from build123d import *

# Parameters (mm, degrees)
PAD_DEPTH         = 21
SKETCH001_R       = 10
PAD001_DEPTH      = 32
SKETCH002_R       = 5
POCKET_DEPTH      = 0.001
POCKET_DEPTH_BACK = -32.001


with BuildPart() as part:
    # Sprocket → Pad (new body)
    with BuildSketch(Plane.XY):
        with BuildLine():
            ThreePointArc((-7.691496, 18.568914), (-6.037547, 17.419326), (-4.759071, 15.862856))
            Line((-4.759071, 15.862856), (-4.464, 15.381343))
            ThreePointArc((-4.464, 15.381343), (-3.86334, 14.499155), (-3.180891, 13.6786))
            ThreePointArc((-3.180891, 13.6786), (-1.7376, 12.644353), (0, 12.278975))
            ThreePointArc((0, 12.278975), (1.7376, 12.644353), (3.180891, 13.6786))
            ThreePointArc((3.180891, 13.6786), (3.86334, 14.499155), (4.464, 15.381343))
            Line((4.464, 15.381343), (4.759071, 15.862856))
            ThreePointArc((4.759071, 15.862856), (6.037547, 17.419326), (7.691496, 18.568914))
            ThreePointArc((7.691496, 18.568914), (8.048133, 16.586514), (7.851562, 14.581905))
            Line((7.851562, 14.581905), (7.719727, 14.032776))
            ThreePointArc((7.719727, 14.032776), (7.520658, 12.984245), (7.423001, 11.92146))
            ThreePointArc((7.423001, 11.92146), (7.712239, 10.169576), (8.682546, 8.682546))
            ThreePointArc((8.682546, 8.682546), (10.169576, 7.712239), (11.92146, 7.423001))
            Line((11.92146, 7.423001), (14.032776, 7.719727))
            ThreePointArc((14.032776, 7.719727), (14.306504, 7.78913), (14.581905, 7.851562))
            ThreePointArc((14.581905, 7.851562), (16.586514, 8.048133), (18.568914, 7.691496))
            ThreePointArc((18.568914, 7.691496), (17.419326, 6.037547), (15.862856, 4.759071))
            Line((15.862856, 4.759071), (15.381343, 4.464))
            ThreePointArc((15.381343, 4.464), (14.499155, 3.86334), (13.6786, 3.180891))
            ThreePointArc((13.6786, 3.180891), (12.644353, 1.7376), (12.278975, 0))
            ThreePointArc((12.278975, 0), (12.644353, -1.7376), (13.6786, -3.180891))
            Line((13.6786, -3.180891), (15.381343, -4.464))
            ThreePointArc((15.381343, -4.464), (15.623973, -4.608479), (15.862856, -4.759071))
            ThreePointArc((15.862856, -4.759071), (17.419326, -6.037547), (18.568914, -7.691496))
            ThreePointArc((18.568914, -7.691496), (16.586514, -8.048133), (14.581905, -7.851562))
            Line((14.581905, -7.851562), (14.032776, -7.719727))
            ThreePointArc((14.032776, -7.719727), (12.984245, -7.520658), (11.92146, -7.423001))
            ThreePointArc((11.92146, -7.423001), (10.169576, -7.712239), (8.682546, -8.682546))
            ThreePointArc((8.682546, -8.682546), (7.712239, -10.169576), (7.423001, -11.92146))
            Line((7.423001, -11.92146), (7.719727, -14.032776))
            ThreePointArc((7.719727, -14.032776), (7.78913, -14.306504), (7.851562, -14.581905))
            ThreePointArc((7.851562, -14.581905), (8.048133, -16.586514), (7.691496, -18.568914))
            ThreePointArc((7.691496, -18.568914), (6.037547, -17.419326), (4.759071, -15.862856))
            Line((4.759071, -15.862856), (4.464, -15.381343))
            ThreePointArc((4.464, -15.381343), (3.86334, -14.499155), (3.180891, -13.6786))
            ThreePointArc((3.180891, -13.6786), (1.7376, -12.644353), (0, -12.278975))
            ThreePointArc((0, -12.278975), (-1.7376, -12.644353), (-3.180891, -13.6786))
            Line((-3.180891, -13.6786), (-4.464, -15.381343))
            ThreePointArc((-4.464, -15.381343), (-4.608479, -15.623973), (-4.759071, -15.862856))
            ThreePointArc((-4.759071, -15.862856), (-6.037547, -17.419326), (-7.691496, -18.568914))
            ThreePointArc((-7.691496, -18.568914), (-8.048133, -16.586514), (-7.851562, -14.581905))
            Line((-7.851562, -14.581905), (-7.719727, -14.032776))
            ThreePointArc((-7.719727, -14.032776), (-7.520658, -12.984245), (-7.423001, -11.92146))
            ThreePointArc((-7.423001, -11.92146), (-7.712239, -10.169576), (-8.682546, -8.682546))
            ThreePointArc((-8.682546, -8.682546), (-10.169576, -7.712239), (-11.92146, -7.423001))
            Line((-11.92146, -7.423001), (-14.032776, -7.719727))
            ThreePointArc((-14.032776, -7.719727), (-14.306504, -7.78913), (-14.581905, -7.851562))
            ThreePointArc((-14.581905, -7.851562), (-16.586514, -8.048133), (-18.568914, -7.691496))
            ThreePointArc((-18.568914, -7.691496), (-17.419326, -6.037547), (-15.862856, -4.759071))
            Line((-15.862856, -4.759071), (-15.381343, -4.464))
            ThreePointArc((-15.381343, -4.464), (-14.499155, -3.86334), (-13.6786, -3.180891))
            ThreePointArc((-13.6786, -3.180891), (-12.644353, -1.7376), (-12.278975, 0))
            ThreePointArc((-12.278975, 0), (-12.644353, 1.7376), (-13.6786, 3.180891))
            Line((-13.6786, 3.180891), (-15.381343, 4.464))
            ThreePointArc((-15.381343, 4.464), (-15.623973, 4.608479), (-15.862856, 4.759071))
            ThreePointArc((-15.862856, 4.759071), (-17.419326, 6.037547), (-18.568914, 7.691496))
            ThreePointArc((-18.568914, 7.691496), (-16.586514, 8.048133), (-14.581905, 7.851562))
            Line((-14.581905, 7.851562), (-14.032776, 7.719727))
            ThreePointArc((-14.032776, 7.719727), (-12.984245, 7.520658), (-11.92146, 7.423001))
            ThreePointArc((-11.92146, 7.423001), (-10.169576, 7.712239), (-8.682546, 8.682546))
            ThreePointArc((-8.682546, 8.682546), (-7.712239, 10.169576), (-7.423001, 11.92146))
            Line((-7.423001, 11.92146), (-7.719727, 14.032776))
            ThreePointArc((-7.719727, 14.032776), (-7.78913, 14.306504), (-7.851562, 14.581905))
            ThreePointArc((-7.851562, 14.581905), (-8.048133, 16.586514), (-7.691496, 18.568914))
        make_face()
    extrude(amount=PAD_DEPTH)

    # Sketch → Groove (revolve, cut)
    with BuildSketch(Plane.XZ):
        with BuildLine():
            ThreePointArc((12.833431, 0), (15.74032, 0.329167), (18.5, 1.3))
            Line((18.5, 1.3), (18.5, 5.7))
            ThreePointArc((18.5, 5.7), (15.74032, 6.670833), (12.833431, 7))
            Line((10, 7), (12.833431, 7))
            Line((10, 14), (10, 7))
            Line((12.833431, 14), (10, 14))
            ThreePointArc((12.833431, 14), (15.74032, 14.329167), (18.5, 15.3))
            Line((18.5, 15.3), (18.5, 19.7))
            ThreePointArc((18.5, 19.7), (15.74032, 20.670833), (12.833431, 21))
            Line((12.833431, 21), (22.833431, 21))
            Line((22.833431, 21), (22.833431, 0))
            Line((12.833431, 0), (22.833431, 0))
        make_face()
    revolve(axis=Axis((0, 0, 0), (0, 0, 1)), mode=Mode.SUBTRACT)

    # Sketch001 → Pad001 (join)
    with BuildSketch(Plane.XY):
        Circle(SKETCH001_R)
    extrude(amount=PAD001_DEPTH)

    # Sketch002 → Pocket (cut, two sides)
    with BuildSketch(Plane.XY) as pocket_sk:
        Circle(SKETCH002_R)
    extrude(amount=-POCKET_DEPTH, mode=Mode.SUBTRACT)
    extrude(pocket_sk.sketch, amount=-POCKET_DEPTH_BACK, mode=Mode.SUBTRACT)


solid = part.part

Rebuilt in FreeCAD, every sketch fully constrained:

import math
import FreeCAD as App
import Part
import Sketcher

V = App.Vector

doc = App.newDocument("Part")
body = doc.addObject("PartDesign::Body", "Body")

sketch1 = body.newObject("Sketcher::SketchObject", "Sketch")
sketch1.AttachmentSupport = (doc.getObject("XY_Plane"), [""])
sketch1.MapMode = "FlatFace"
sketch1.addGeometry(Part.ArcOfCircle(Part.Circle(V(-11.007099, 12.034061, 0), V(0, 0, 1), 7.327859), math.radians(31.499988), math.radians(63.098027)), False)
sketch1.addGeometry(Part.ArcOfCircle(Part.Circle(V(-0.726167, 16.29256, 0), V(0, 0, 1), 7.327864), math.radians(161.901981), math.radians(193.499994)), False)
sketch1.addGeometry(Part.ArcOfCircle(Part.Circle(V(3.027006, 16.903244, 0), V(0, 0, 1), 11.123482), math.radians(-167.954515), math.radians(-165.045329)), False)
sketch1.addGeometry(Part.LineSegment(V(-7.719727, 14.032776, 0), V(-7.423001, 11.92146, 0)), False)
sketch1.addGeometry(Part.ArcOfCircle(Part.Circle(V(-11.733276, 11.733272, 0), V(0, 0, 1), 4.314381), math.radians(-44.999965), math.radians(2.499958)), False)
sketch1.addGeometry(Part.ArcOfCircle(Part.Circle(V(-11.733272, 11.733276, 0), V(0, 0, 1), 4.314381), math.radians(-92.499958), math.radians(-45.000035)), False)
sketch1.addGeometry(Part.ArcOfCircle(Part.Circle(V(-11.436285, 18.534963, 0), V(0, 0, 1), 11.122549), math.radians(-103.499912), math.radians(-92.500082)), False)
sketch1.addGeometry(Part.LineSegment(V(-14.032776, 7.719727, 0), V(-14.581905, 7.851562, 0)), False)
sketch1.addGeometry(Part.ArcOfCircle(Part.Circle(V(-16.29256, 0.726167, 0), V(0, 0, 1), 7.327864), math.radians(76.500006), math.radians(108.098019)), False)
sketch1.addGeometry(Part.ArcOfCircle(Part.Circle(V(-12.034061, 11.007099, 0), V(0, 0, 1), 7.327859), math.radians(-153.098027), math.radians(-121.499988)), False)
sketch1.addGeometry(Part.ArcOfCircle(Part.Circle(V(-9.812852, 14.091384, 0), V(0, 0, 1), 11.121808), math.radians(-122.954762), math.radians(-120.045144)), False)
sketch1.addGeometry(Part.LineSegment(V(-15.381343, 4.464, 0), V(-13.6786, 3.180891, 0)), False)
sketch1.addGeometry(Part.ArcOfCircle(Part.Circle(V(-16.593353, -0.000001, 0), V(0, 0, 1), 4.314378), math.radians(0.000011), math.radians(47.499973)), False)
sketch1.addGeometry(Part.ArcOfCircle(Part.Circle(V(-16.593353, 0.000001, 0), V(0, 0, 1), 4.314378), math.radians(-47.499973), math.radians(-0.000011)), False)
sketch1.addGeometry(Part.ArcOfCircle(Part.Circle(V(-21.192716, 5.019314, 0), V(0, 0, 1), 11.122288), math.radians(-58.500042), math.radians(-47.499953)), False)
sketch1.addGeometry(Part.LineSegment(V(-15.381343, -4.464, 0), V(-15.862856, -4.759071, 0)), False)
sketch1.addGeometry(Part.ArcOfCircle(Part.Circle(V(-12.034061, -11.007099, 0), V(0, 0, 1), 7.327859), math.radians(121.499988), math.radians(153.098027)), False)
sketch1.addGeometry(Part.ArcOfCircle(Part.Circle(V(-16.29256, -0.726167, 0), V(0, 0, 1), 7.327864), math.radians(-108.098019), math.radians(-76.500006)), False)
sketch1.addGeometry(Part.ArcOfCircle(Part.Circle(V(-16.903244, 3.027006, 0), V(0, 0, 1), 11.123482), math.radians(-77.954515), math.radians(-75.045329)), False)
sketch1.addGeometry(Part.LineSegment(V(-14.032776, -7.719727, 0), V(-11.92146, -7.423001, 0)), False)
sketch1.addGeometry(Part.ArcOfCircle(Part.Circle(V(-11.733272, -11.733276, 0), V(0, 0, 1), 4.314381), math.radians(45.000035), math.radians(92.499958)), False)
sketch1.addGeometry(Part.ArcOfCircle(Part.Circle(V(-11.733276, -11.733272, 0), V(0, 0, 1), 4.314381), math.radians(-2.499958), math.radians(44.999965)), False)
sketch1.addGeometry(Part.ArcOfCircle(Part.Circle(V(-18.534963, -11.436285, 0), V(0, 0, 1), 11.122549), math.radians(-13.499912), math.radians(-2.500082)), False)
sketch1.addGeometry(Part.LineSegment(V(-7.719727, -14.032776, 0), V(-7.851562, -14.581905, 0)), False)
sketch1.addGeometry(Part.ArcOfCircle(Part.Circle(V(-0.726167, -16.29256, 0), V(0, 0, 1), 7.327864), math.radians(166.500006), math.radians(198.098019)), False)
sketch1.addGeometry(Part.ArcOfCircle(Part.Circle(V(-11.007099, -12.034061, 0), V(0, 0, 1), 7.327859), math.radians(-63.098027), math.radians(-31.499988)), False)
sketch1.addGeometry(Part.ArcOfCircle(Part.Circle(V(-14.091384, -9.812852, 0), V(0, 0, 1), 11.121808), math.radians(-32.954762), math.radians(-30.045144)), False)
sketch1.addGeometry(Part.LineSegment(V(-4.464, -15.381343, 0), V(-3.180891, -13.6786, 0)), False)
sketch1.addGeometry(Part.ArcOfCircle(Part.Circle(V(0.000001, -16.593353, 0), V(0, 0, 1), 4.314378), math.radians(90.000011), math.radians(137.499973)), False)
sketch1.addGeometry(Part.ArcOfCircle(Part.Circle(V(-0.000001, -16.593353, 0), V(0, 0, 1), 4.314378), math.radians(42.500027), math.radians(89.999989)), False)
sketch1.addGeometry(Part.ArcOfCircle(Part.Circle(V(-5.019314, -21.192716, 0), V(0, 0, 1), 11.122288), math.radians(31.499958), math.radians(42.500047)), False)
sketch1.addGeometry(Part.LineSegment(V(4.464, -15.381343, 0), V(4.759071, -15.862856, 0)), False)
sketch1.addGeometry(Part.ArcOfCircle(Part.Circle(V(11.007099, -12.034061, 0), V(0, 0, 1), 7.327859), math.radians(-148.500012), math.radians(-116.901973)), False)
sketch1.addGeometry(Part.ArcOfCircle(Part.Circle(V(0.726167, -16.29256, 0), V(0, 0, 1), 7.327864), math.radians(-18.098019), math.radians(13.499994)), False)
sketch1.addGeometry(Part.ArcOfCircle(Part.Circle(V(-3.027006, -16.903244, 0), V(0, 0, 1), 11.123482), math.radians(12.045485), math.radians(14.954671)), False)
sketch1.addGeometry(Part.LineSegment(V(7.719727, -14.032776, 0), V(7.423001, -11.92146, 0)), False)
sketch1.addGeometry(Part.ArcOfCircle(Part.Circle(V(11.733276, -11.733272, 0), V(0, 0, 1), 4.314381), math.radians(135.000035), math.radians(182.499958)), False)
sketch1.addGeometry(Part.ArcOfCircle(Part.Circle(V(11.733272, -11.733276, 0), V(0, 0, 1), 4.314381), math.radians(87.500042), math.radians(134.999965)), False)
sketch1.addGeometry(Part.ArcOfCircle(Part.Circle(V(11.436285, -18.534963, 0), V(0, 0, 1), 11.122549), math.radians(76.500088), math.radians(87.499918)), False)
sketch1.addGeometry(Part.LineSegment(V(14.032776, -7.719727, 0), V(14.581905, -7.851562, 0)), False)
sketch1.addGeometry(Part.ArcOfCircle(Part.Circle(V(16.29256, -0.726167, 0), V(0, 0, 1), 7.327864), math.radians(-103.499994), math.radians(-71.901981)), False)
sketch1.addGeometry(Part.ArcOfCircle(Part.Circle(V(12.034061, -11.007099, 0), V(0, 0, 1), 7.327859), math.radians(26.901973), math.radians(58.500012)), False)
sketch1.addGeometry(Part.ArcOfCircle(Part.Circle(V(9.812852, -14.091384, 0), V(0, 0, 1), 11.121808), math.radians(57.045238), math.radians(59.954856)), False)
sketch1.addGeometry(Part.LineSegment(V(15.381343, -4.464, 0), V(13.6786, -3.180891, 0)), False)
sketch1.addGeometry(Part.ArcOfCircle(Part.Circle(V(16.593353, 0.000001, 0), V(0, 0, 1), 4.314378), math.radians(-179.999989), math.radians(-132.500027)), False)
sketch1.addGeometry(Part.ArcOfCircle(Part.Circle(V(16.593353, -0.000001, 0), V(0, 0, 1), 4.314378), math.radians(132.500027), math.radians(179.999989)), False)
sketch1.addGeometry(Part.ArcOfCircle(Part.Circle(V(21.192716, -5.019314, 0), V(0, 0, 1), 11.122288), math.radians(121.499958), math.radians(132.500047)), False)
sketch1.addGeometry(Part.LineSegment(V(15.381343, 4.464, 0), V(15.862856, 4.759071, 0)), False)
sketch1.addGeometry(Part.ArcOfCircle(Part.Circle(V(12.034061, 11.007099, 0), V(0, 0, 1), 7.327859), math.radians(-58.500012), math.radians(-26.901973)), False)
sketch1.addGeometry(Part.ArcOfCircle(Part.Circle(V(16.29256, 0.726167, 0), V(0, 0, 1), 7.327864), math.radians(71.901981), math.radians(103.499994)), False)
sketch1.addGeometry(Part.ArcOfCircle(Part.Circle(V(16.903244, -3.027006, 0), V(0, 0, 1), 11.123482), math.radians(102.045485), math.radians(104.954671)), False)
sketch1.addGeometry(Part.LineSegment(V(14.032776, 7.719727, 0), V(11.92146, 7.423001, 0)), False)
sketch1.addGeometry(Part.ArcOfCircle(Part.Circle(V(11.733272, 11.733276, 0), V(0, 0, 1), 4.314381), math.radians(-134.999965), math.radians(-87.500042)), False)
sketch1.addGeometry(Part.ArcOfCircle(Part.Circle(V(11.733276, 11.733272, 0), V(0, 0, 1), 4.314381), math.radians(177.500042), math.radians(224.999965)), False)
sketch1.addGeometry(Part.ArcOfCircle(Part.Circle(V(18.534963, 11.436285, 0), V(0, 0, 1), 11.122549), math.radians(166.500088), math.radians(177.499918)), False)
sketch1.addGeometry(Part.LineSegment(V(7.719727, 14.032776, 0), V(7.851562, 14.581905, 0)), False)
sketch1.addGeometry(Part.ArcOfCircle(Part.Circle(V(0.726167, 16.29256, 0), V(0, 0, 1), 7.327864), math.radians(-13.499994), math.radians(18.098019)), False)
sketch1.addGeometry(Part.ArcOfCircle(Part.Circle(V(11.007099, 12.034061, 0), V(0, 0, 1), 7.327859), math.radians(116.901973), math.radians(148.500012)), False)
sketch1.addGeometry(Part.LineSegment(V(4.759071, 15.862856, 0), V(4.464, 15.381343, 0)), False)
sketch1.addGeometry(Part.ArcOfCircle(Part.Circle(V(-5.019314, 21.192716, 0), V(0, 0, 1), 11.122288), math.radians(-42.500047), math.radians(-31.499958)), False)
sketch1.addGeometry(Part.ArcOfCircle(Part.Circle(V(-0.000001, 16.593353, 0), V(0, 0, 1), 4.314378), math.radians(-89.999989), math.radians(-42.500027)), False)
sketch1.addGeometry(Part.ArcOfCircle(Part.Circle(V(0.000001, 16.593353, 0), V(0, 0, 1), 4.314378), math.radians(-137.499973), math.radians(-90.000011)), False)
sketch1.addGeometry(Part.ArcOfCircle(Part.Circle(V(5.019314, 21.192716, 0), V(0, 0, 1), 11.122288), math.radians(-148.500042), math.radians(-137.499953)), False)
sketch1.addGeometry(Part.LineSegment(V(-4.464, 15.381343, 0), V(-4.759071, 15.862856, 0)), False)
sketch1.addConstraint(Sketcher.Constraint("Coincident", 0, 2, 1, 1))
sketch1.addConstraint(Sketcher.Constraint("Coincident", 1, 2, 2, 1))
sketch1.addConstraint(Sketcher.Constraint("Coincident", 2, 2, 3, 1))
sketch1.addConstraint(Sketcher.Constraint("Coincident", 3, 2, 4, 2))
sketch1.addConstraint(Sketcher.Constraint("Coincident", 4, 1, 5, 2))
sketch1.addConstraint(Sketcher.Constraint("Coincident", 5, 1, 6, 2))
sketch1.addConstraint(Sketcher.Constraint("Coincident", 6, 1, 7, 1))
sketch1.addConstraint(Sketcher.Constraint("Coincident", 7, 2, 8, 1))
sketch1.addConstraint(Sketcher.Constraint("Coincident", 8, 2, 9, 1))
sketch1.addConstraint(Sketcher.Constraint("Coincident", 9, 2, 10, 1))
sketch1.addConstraint(Sketcher.Constraint("Coincident", 10, 2, 11, 1))
sketch1.addConstraint(Sketcher.Constraint("Coincident", 11, 2, 12, 2))
sketch1.addConstraint(Sketcher.Constraint("Coincident", 12, 1, 13, 2))
sketch1.addConstraint(Sketcher.Constraint("Coincident", 13, 1, 14, 2))
sketch1.addConstraint(Sketcher.Constraint("Coincident", 14, 1, 15, 1))
sketch1.addConstraint(Sketcher.Constraint("Coincident", 15, 2, 16, 1))
sketch1.addConstraint(Sketcher.Constraint("Coincident", 16, 2, 17, 1))
sketch1.addConstraint(Sketcher.Constraint("Coincident", 17, 2, 18, 1))
sketch1.addConstraint(Sketcher.Constraint("Coincident", 18, 2, 19, 1))
sketch1.addConstraint(Sketcher.Constraint("Coincident", 19, 2, 20, 2))
sketch1.addConstraint(Sketcher.Constraint("Coincident", 20, 1, 21, 2))
sketch1.addConstraint(Sketcher.Constraint("Coincident", 21, 1, 22, 2))
sketch1.addConstraint(Sketcher.Constraint("Coincident", 22, 1, 23, 1))
sketch1.addConstraint(Sketcher.Constraint("Coincident", 23, 2, 24, 1))
sketch1.addConstraint(Sketcher.Constraint("Coincident", 24, 2, 25, 1))
sketch1.addConstraint(Sketcher.Constraint("Coincident", 25, 2, 26, 1))
sketch1.addConstraint(Sketcher.Constraint("Coincident", 26, 2, 27, 1))
sketch1.addConstraint(Sketcher.Constraint("Coincident", 27, 2, 28, 2))
sketch1.addConstraint(Sketcher.Constraint("Coincident", 28, 1, 29, 2))
sketch1.addConstraint(Sketcher.Constraint("Coincident", 29, 1, 30, 2))
sketch1.addConstraint(Sketcher.Constraint("Coincident", 30, 1, 31, 1))
sketch1.addConstraint(Sketcher.Constraint("Coincident", 31, 2, 32, 1))
sketch1.addConstraint(Sketcher.Constraint("Coincident", 32, 2, 33, 1))
sketch1.addConstraint(Sketcher.Constraint("Coincident", 33, 2, 34, 1))
sketch1.addConstraint(Sketcher.Constraint("Coincident", 34, 2, 35, 1))
sketch1.addConstraint(Sketcher.Constraint("Coincident", 35, 2, 36, 2))
sketch1.addConstraint(Sketcher.Constraint("Coincident", 36, 1, 37, 2))
sketch1.addConstraint(Sketcher.Constraint("Coincident", 37, 1, 38, 2))
sketch1.addConstraint(Sketcher.Constraint("Coincident", 38, 1, 39, 1))
sketch1.addConstraint(Sketcher.Constraint("Coincident", 39, 2, 40, 1))
sketch1.addConstraint(Sketcher.Constraint("Coincident", 40, 2, 41, 1))
sketch1.addConstraint(Sketcher.Constraint("Coincident", 41, 2, 42, 1))
sketch1.addConstraint(Sketcher.Constraint("Coincident", 42, 2, 43, 1))
sketch1.addConstraint(Sketcher.Constraint("Coincident", 43, 2, 44, 2))
sketch1.addConstraint(Sketcher.Constraint("Coincident", 44, 1, 45, 2))
sketch1.addConstraint(Sketcher.Constraint("Coincident", 45, 1, 46, 2))
sketch1.addConstraint(Sketcher.Constraint("Coincident", 46, 1, 47, 1))
sketch1.addConstraint(Sketcher.Constraint("Coincident", 47, 2, 48, 1))
sketch1.addConstraint(Sketcher.Constraint("Coincident", 48, 2, 49, 1))
sketch1.addConstraint(Sketcher.Constraint("Coincident", 49, 2, 50, 1))
sketch1.addConstraint(Sketcher.Constraint("Coincident", 50, 2, 51, 1))
sketch1.addConstraint(Sketcher.Constraint("Coincident", 51, 2, 52, 2))
sketch1.addConstraint(Sketcher.Constraint("Coincident", 52, 1, 53, 2))
sketch1.addConstraint(Sketcher.Constraint("Coincident", 53, 1, 54, 2))
sketch1.addConstraint(Sketcher.Constraint("Coincident", 54, 1, 55, 1))
sketch1.addConstraint(Sketcher.Constraint("Coincident", 55, 2, 56, 1))
sketch1.addConstraint(Sketcher.Constraint("Coincident", 56, 2, 57, 1))
sketch1.addConstraint(Sketcher.Constraint("Coincident", 57, 2, 58, 1))
sketch1.addConstraint(Sketcher.Constraint("Coincident", 58, 2, 59, 2))
sketch1.addConstraint(Sketcher.Constraint("Coincident", 59, 1, 60, 2))
sketch1.addConstraint(Sketcher.Constraint("Coincident", 60, 1, 61, 2))
sketch1.addConstraint(Sketcher.Constraint("Coincident", 61, 1, 62, 2))
sketch1.addConstraint(Sketcher.Constraint("Coincident", 62, 1, 63, 1))
sketch1.addConstraint(Sketcher.Constraint("Coincident", 63, 2, 0, 1))
sketch1.addConstraint(Sketcher.Constraint("Coincident", 5, 3, 4, 3))
sketch1.addConstraint(Sketcher.Constraint("Coincident", 13, 3, 12, 3))
sketch1.addConstraint(Sketcher.Constraint("Coincident", 21, 3, 20, 3))
sketch1.addConstraint(Sketcher.Constraint("Coincident", 29, 3, 28, 3))
sketch1.addConstraint(Sketcher.Constraint("Coincident", 37, 3, 36, 3))
sketch1.addConstraint(Sketcher.Constraint("Coincident", 45, 3, 44, 3))
sketch1.addConstraint(Sketcher.Constraint("Coincident", 53, 3, 52, 3))
sketch1.addConstraint(Sketcher.Constraint("Coincident", 61, 3, 60, 3))
sketch1.addConstraint(Sketcher.Constraint("PointOnObject", 12, 3, -1))
sketch1.addConstraint(Sketcher.Constraint("PointOnObject", 28, 3, -2))
sketch1.addConstraint(Sketcher.Constraint("PointOnObject", 44, 3, -1))
sketch1.addConstraint(Sketcher.Constraint("PointOnObject", 60, 3, -2))
sketch1.addConstraint(Sketcher.Constraint("PointOnObject", 12, 1, -1))
sketch1.addConstraint(Sketcher.Constraint("PointOnObject", 28, 1, -2))
sketch1.addConstraint(Sketcher.Constraint("PointOnObject", 44, 1, -1))
sketch1.addConstraint(Sketcher.Constraint("PointOnObject", 60, 1, -2))
sketch1.addConstraint(Sketcher.Constraint("Radius", 0, 7.327859))
sketch1.addConstraint(Sketcher.Constraint("Radius", 4, 4.314381))
sketch1.addConstraint(Sketcher.Constraint("Radius", 6, 11.122549))
sketch1.addConstraint(Sketcher.Constraint("Radius", 9, 7.327859))
sketch1.addConstraint(Sketcher.Constraint("Radius", 10, 11.121808))
sketch1.addConstraint(Sketcher.Constraint("Radius", 12, 4.314378))
sketch1.addConstraint(Sketcher.Constraint("Radius", 14, 11.122288))
sketch1.addConstraint(Sketcher.Constraint("Radius", 16, 7.327859))
sketch1.addConstraint(Sketcher.Constraint("Radius", 20, 4.314381))
sketch1.addConstraint(Sketcher.Constraint("Radius", 22, 11.122549))
sketch1.addConstraint(Sketcher.Constraint("Radius", 25, 7.327859))
sketch1.addConstraint(Sketcher.Constraint("Radius", 26, 11.121808))
sketch1.addConstraint(Sketcher.Constraint("Radius", 28, 4.314378))
sketch1.addConstraint(Sketcher.Constraint("Radius", 30, 11.122288))
sketch1.addConstraint(Sketcher.Constraint("Radius", 32, 7.327859))
sketch1.addConstraint(Sketcher.Constraint("Radius", 36, 4.314381))
sketch1.addConstraint(Sketcher.Constraint("Radius", 38, 11.122549))
sketch1.addConstraint(Sketcher.Constraint("Radius", 41, 7.327859))
sketch1.addConstraint(Sketcher.Constraint("Radius", 42, 11.121808))
sketch1.addConstraint(Sketcher.Constraint("Radius", 44, 4.314378))
sketch1.addConstraint(Sketcher.Constraint("Radius", 46, 11.122288))
sketch1.addConstraint(Sketcher.Constraint("Radius", 48, 7.327859))
sketch1.addConstraint(Sketcher.Constraint("Radius", 52, 4.314381))
sketch1.addConstraint(Sketcher.Constraint("Radius", 54, 11.122549))
sketch1.addConstraint(Sketcher.Constraint("Radius", 57, 7.327859))
sketch1.addConstraint(Sketcher.Constraint("Radius", 59, 11.122288))
sketch1.addConstraint(Sketcher.Constraint("Radius", 60, 4.314378))
sketch1.addConstraint(Sketcher.Constraint("Radius", 62, 11.122288))
sketch1.addConstraint(Sketcher.Constraint("DistanceX", 3, 2, -1, 1, 7.423001))
sketch1.addConstraint(Sketcher.Constraint("DistanceY", -1, 1, 5, 1, 7.423001))
sketch1.addConstraint(Sketcher.Constraint("DistanceY", -1, 1, 10, 2, 4.464))
sketch1.addConstraint(Sketcher.Constraint("DistanceY", 14, 1, -1, 1, 4.464))
sketch1.addConstraint(Sketcher.Constraint("DistanceY", 19, 2, -1, 1, 7.423001))
sketch1.addConstraint(Sketcher.Constraint("DistanceX", 21, 1, -1, 1, 7.423001))
sketch1.addConstraint(Sketcher.Constraint("DistanceX", 26, 2, -1, 1, 4.464))
sketch1.addConstraint(Sketcher.Constraint("DistanceX", -1, 1, 30, 1, 4.464))
sketch1.addConstraint(Sketcher.Constraint("DistanceX", -1, 1, 35, 2, 7.423001))
sketch1.addConstraint(Sketcher.Constraint("DistanceY", 37, 1, -1, 1, 7.423001))
sketch1.addConstraint(Sketcher.Constraint("DistanceY", 42, 2, -1, 1, 4.464))
sketch1.addConstraint(Sketcher.Constraint("DistanceY", -1, 1, 46, 1, 4.464))
sketch1.addConstraint(Sketcher.Constraint("DistanceY", -1, 1, 51, 2, 7.423001))
sketch1.addConstraint(Sketcher.Constraint("DistanceX", -1, 1, 53, 1, 7.423001))
sketch1.addConstraint(Sketcher.Constraint("DistanceX", -1, 1, 58, 2, 4.464))
sketch1.addConstraint(Sketcher.Constraint("DistanceX", 62, 1, -1, 1, 4.464))
sketch1.addConstraint(Sketcher.Constraint("Radius", 1, 7.327864))
sketch1.addConstraint(Sketcher.Constraint("Radius", 2, 11.123482))
sketch1.addConstraint(Sketcher.Constraint("Radius", 8, 7.327864))
sketch1.addConstraint(Sketcher.Constraint("Radius", 17, 7.327864))
sketch1.addConstraint(Sketcher.Constraint("Radius", 18, 11.123482))
sketch1.addConstraint(Sketcher.Constraint("Radius", 24, 7.327864))
sketch1.addConstraint(Sketcher.Constraint("Radius", 33, 7.327864))
sketch1.addConstraint(Sketcher.Constraint("Radius", 34, 11.123482))
sketch1.addConstraint(Sketcher.Constraint("Radius", 40, 7.327864))
sketch1.addConstraint(Sketcher.Constraint("Radius", 49, 7.327864))
sketch1.addConstraint(Sketcher.Constraint("Radius", 50, 11.123482))
sketch1.addConstraint(Sketcher.Constraint("Radius", 56, 7.327864))
sketch1.addConstraint(Sketcher.Constraint("DistanceX", 0, 3, -1, 1, 11.007099))
sketch1.addConstraint(Sketcher.Constraint("DistanceY", -1, 1, 9, 3, 11.007099))
sketch1.addConstraint(Sketcher.Constraint("DistanceY", 16, 3, -1, 1, 11.007099))
sketch1.addConstraint(Sketcher.Constraint("DistanceX", 25, 3, -1, 1, 11.007099))
sketch1.addConstraint(Sketcher.Constraint("DistanceX", -1, 1, 32, 3, 11.007099))
sketch1.addConstraint(Sketcher.Constraint("DistanceY", 41, 3, -1, 1, 11.007099))
sketch1.addConstraint(Sketcher.Constraint("DistanceY", -1, 1, 48, 3, 11.007099))
sketch1.addConstraint(Sketcher.Constraint("DistanceX", -1, 1, 57, 3, 11.007099))
sketch1.addConstraint(Sketcher.Constraint("DistanceX", 11, 2, -1, 1, 13.6786))
sketch1.addConstraint(Sketcher.Constraint("DistanceX", 13, 1, -1, 1, 13.6786))
sketch1.addConstraint(Sketcher.Constraint("DistanceY", 27, 2, -1, 1, 13.6786))
sketch1.addConstraint(Sketcher.Constraint("DistanceY", 29, 1, -1, 1, 13.6786))
sketch1.addConstraint(Sketcher.Constraint("DistanceX", -1, 1, 43, 2, 13.6786))
sketch1.addConstraint(Sketcher.Constraint("DistanceX", -1, 1, 45, 1, 13.6786))
sketch1.addConstraint(Sketcher.Constraint("DistanceY", -1, 1, 59, 1, 13.6786))
sketch1.addConstraint(Sketcher.Constraint("DistanceY", -1, 1, 61, 1, 13.6786))
sketch1.addConstraint(Sketcher.Constraint("Distance", 15, 0.564731))
sketch1.addConstraint(Sketcher.Constraint("Distance", 31, 0.564731))
sketch1.addConstraint(Sketcher.Constraint("Distance", 47, 0.564731))
sketch1.addConstraint(Sketcher.Constraint("Distance", 58, 0.564731))
sketch1.addConstraint(Sketcher.Constraint("Distance", 63, 0.564731))
sketch1.addConstraint(Sketcher.Constraint("DistanceY", -1, 1, 0, 3, 12.034061))
sketch1.addConstraint(Sketcher.Constraint("DistanceY", -1, 1, 1, 3, 16.29256))
sketch1.addConstraint(Sketcher.Constraint("DistanceX", 8, 3, -1, 1, 16.29256))
sketch1.addConstraint(Sketcher.Constraint("DistanceX", 9, 3, -1, 1, 12.034061))
sketch1.addConstraint(Sketcher.Constraint("DistanceX", 10, 3, -1, 1, 9.812852))
sketch1.addConstraint(Sketcher.Constraint("DistanceX", 16, 3, -1, 1, 12.034061))
sketch1.addConstraint(Sketcher.Constraint("DistanceX", 17, 3, -1, 1, 16.29256))
sketch1.addConstraint(Sketcher.Constraint("DistanceY", 24, 3, -1, 1, 16.29256))
sketch1.addConstraint(Sketcher.Constraint("DistanceY", 25, 3, -1, 1, 12.034061))
sketch1.addConstraint(Sketcher.Constraint("DistanceY", 26, 3, -1, 1, 9.812852))
sketch1.addConstraint(Sketcher.Constraint("DistanceY", 32, 3, -1, 1, 12.034061))
sketch1.addConstraint(Sketcher.Constraint("DistanceY", 33, 3, -1, 1, 16.29256))
sketch1.addConstraint(Sketcher.Constraint("DistanceX", -1, 1, 40, 3, 16.29256))
sketch1.addConstraint(Sketcher.Constraint("DistanceX", -1, 1, 41, 3, 12.034061))
sketch1.addConstraint(Sketcher.Constraint("DistanceX", -1, 1, 42, 3, 9.812852))
sketch1.addConstraint(Sketcher.Constraint("DistanceX", -1, 1, 48, 3, 12.034061))
sketch1.addConstraint(Sketcher.Constraint("DistanceX", -1, 1, 49, 3, 16.29256))
sketch1.addConstraint(Sketcher.Constraint("DistanceY", -1, 1, 56, 3, 16.29256))
sketch1.addConstraint(Sketcher.Constraint("DistanceY", -1, 1, 57, 3, 12.034061))
sketch1.addConstraint(Sketcher.Constraint("DistanceX", 1, 2, -1, 1, 7.851562))
sketch1.addConstraint(Sketcher.Constraint("DistanceY", -1, 1, 3, 2, 11.92146))
sketch1.addConstraint(Sketcher.Constraint("DistanceX", 5, 1, -1, 1, 11.92146))
sketch1.addConstraint(Sketcher.Constraint("DistanceY", -1, 1, 9, 2, 4.759071))
sketch1.addConstraint(Sketcher.Constraint("DistanceY", -1, 1, 11, 2, 3.180891))
sketch1.addConstraint(Sketcher.Constraint("DistanceY", 15, 2, -1, 1, 4.759071))
sketch1.addConstraint(Sketcher.Constraint("DistanceY", 17, 2, -1, 1, 7.851562))
sketch1.addConstraint(Sketcher.Constraint("DistanceX", 19, 2, -1, 1, 11.92146))
sketch1.addConstraint(Sketcher.Constraint("DistanceY", 21, 1, -1, 1, 11.92146))
sketch1.addConstraint(Sketcher.Constraint("DistanceX", 25, 2, -1, 1, 4.759071))
sketch1.addConstraint(Sketcher.Constraint("DistanceX", 27, 2, -1, 1, 3.180891))
sketch1.addConstraint(Sketcher.Constraint("DistanceX", -1, 1, 31, 2, 4.759071))
sketch1.addConstraint(Sketcher.Constraint("DistanceX", -1, 1, 33, 2, 7.851562))
sketch1.addConstraint(Sketcher.Constraint("DistanceY", 35, 2, -1, 1, 11.92146))
sketch1.addConstraint(Sketcher.Constraint("DistanceX", -1, 1, 37, 1, 11.92146))
sketch1.addConstraint(Sketcher.Constraint("DistanceY", 41, 2, -1, 1, 4.759071))
sketch1.addConstraint(Sketcher.Constraint("DistanceY", 43, 2, -1, 1, 3.180891))
sketch1.addConstraint(Sketcher.Constraint("DistanceY", -1, 1, 47, 2, 4.759071))
sketch1.addConstraint(Sketcher.Constraint("DistanceY", -1, 1, 49, 2, 7.851562))
sketch1.addConstraint(Sketcher.Constraint("DistanceX", -1, 1, 51, 2, 11.92146))
sketch1.addConstraint(Sketcher.Constraint("DistanceY", -1, 1, 53, 1, 11.92146))
sketch1.addConstraint(Sketcher.Constraint("DistanceX", -1, 1, 57, 2, 4.759071))
sketch1.addConstraint(Sketcher.Constraint("DistanceX", -1, 1, 59, 1, 3.180891))
sketch1.addConstraint(Sketcher.Constraint("DistanceX", 63, 2, -1, 1, 4.759071))
sketch1.addConstraint(Sketcher.Constraint("Distance", 3, 2.132065))
sketch1.addConstraint(Sketcher.Constraint("Distance", 7, 0.564733))
sketch1.addConstraint(Sketcher.Constraint("Distance", 19, 2.132065))
sketch1.addConstraint(Sketcher.Constraint("Distance", 23, 0.564733))
sketch1.addConstraint(Sketcher.Constraint("Distance", 35, 2.132065))
sketch1.addConstraint(Sketcher.Constraint("Distance", 39, 0.564733))
sketch1.addConstraint(Sketcher.Constraint("Distance", 51, 2.132065))
sketch1.addConstraint(Sketcher.Constraint("Distance", 55, 0.564733))
sketch1.addConstraint(Sketcher.Constraint("DistanceX", 1, 3, -1, 1, 0.726167))
sketch1.addConstraint(Sketcher.Constraint("DistanceX", -1, 1, 2, 3, 3.027006))
sketch1.addConstraint(Sketcher.Constraint("DistanceX", 6, 3, -1, 1, 11.436285))
sketch1.addConstraint(Sketcher.Constraint("DistanceY", -1, 1, 8, 3, 0.726167))
sketch1.addConstraint(Sketcher.Constraint("DistanceY", 17, 3, -1, 1, 0.726167))
sketch1.addConstraint(Sketcher.Constraint("DistanceX", 18, 3, -1, 1, 16.903244))
sketch1.addConstraint(Sketcher.Constraint("DistanceX", 22, 3, -1, 1, 18.534963))
sketch1.addConstraint(Sketcher.Constraint("DistanceX", 24, 3, -1, 1, 0.726167))
sketch1.addConstraint(Sketcher.Constraint("DistanceX", -1, 1, 33, 3, 0.726167))
sketch1.addConstraint(Sketcher.Constraint("DistanceX", 34, 3, -1, 1, 3.027006))
sketch1.addConstraint(Sketcher.Constraint("DistanceX", -1, 1, 38, 3, 11.436285))
sketch1.addConstraint(Sketcher.Constraint("DistanceY", 40, 3, -1, 1, 0.726167))
sketch1.addConstraint(Sketcher.Constraint("DistanceY", -1, 1, 49, 3, 0.726167))
sketch1.addConstraint(Sketcher.Constraint("DistanceX", -1, 1, 50, 3, 16.903244))
sketch1.addConstraint(Sketcher.Constraint("DistanceX", -1, 1, 54, 3, 18.534963))
sketch1.addConstraint(Sketcher.Constraint("DistanceX", -1, 1, 56, 3, 0.726167))
sketch1.addConstraint(Sketcher.Constraint("DistanceX", 4, 1, -1, 1, 8.682546))
sketch1.addConstraint(Sketcher.Constraint("DistanceX", 6, 1, -1, 1, 14.032776))
sketch1.addConstraint(Sketcher.Constraint("DistanceX", 20, 1, -1, 1, 8.682546))
sketch1.addConstraint(Sketcher.Constraint("DistanceX", 22, 1, -1, 1, 7.719727))
sketch1.addConstraint(Sketcher.Constraint("DistanceX", -1, 1, 36, 1, 8.682546))
sketch1.addConstraint(Sketcher.Constraint("DistanceX", -1, 1, 38, 1, 14.032776))
sketch1.addConstraint(Sketcher.Constraint("DistanceX", -1, 1, 52, 1, 8.682546))
sketch1.addConstraint(Sketcher.Constraint("DistanceX", -1, 1, 54, 1, 7.719727))
pad1 = body.newObject("PartDesign::Pad", "Pad")
pad1.Profile = sketch1
pad1.Length = 21

sketch2 = body.newObject("Sketcher::SketchObject", "Sketch001")
sketch2.AttachmentSupport = (doc.getObject("XZ_Plane"), [""])
sketch2.MapMode = "FlatFace"
sketch2.addGeometry(Part.ArcOfCircle(Part.Circle(V(12.8, 13, 0), V(0, 0, 1), 13), math.radians(-90), math.radians(-64)), False)
sketch2.addGeometry(Part.LineSegment(V(12.8, 0, 0), V(22.8, 0, 0)), False)
sketch2.addGeometry(Part.LineSegment(V(22.8, 0, 0), V(22.8, 21, 0)), False)
sketch2.addGeometry(Part.LineSegment(V(22.8, 21, 0), V(12.8, 21, 0)), False)
sketch2.addGeometry(Part.ArcOfCircle(Part.Circle(V(12.8, 8, 0), V(0, 0, 1), 13), math.radians(64), math.radians(90)), False)
sketch2.addGeometry(Part.LineSegment(V(18.5, 19.7, 0), V(18.5, 15.3, 0)), False)
sketch2.addGeometry(Part.ArcOfCircle(Part.Circle(V(12.8, 27, 0), V(0, 0, 1), 13), math.radians(-90), math.radians(-64)), False)
sketch2.addGeometry(Part.LineSegment(V(12.8, 14, 0), V(10, 14, 0)), False)
sketch2.addGeometry(Part.LineSegment(V(10, 14, 0), V(10, 7, 0)), False)
sketch2.addGeometry(Part.LineSegment(V(10, 7, 0), V(12.8, 7, 0)), False)
sketch2.addGeometry(Part.ArcOfCircle(Part.Circle(V(12.8, -6, 0), V(0, 0, 1), 13), math.radians(64), math.radians(90)), False)
sketch2.addGeometry(Part.LineSegment(V(18.5, 5.7, 0), V(18.5, 1.3, 0)), False)
sketch2.addConstraint(Sketcher.Constraint("Tangent", 0, 1, 1, 1))
sketch2.addConstraint(Sketcher.Constraint("Coincident", 1, 2, 2, 1))
sketch2.addConstraint(Sketcher.Constraint("Coincident", 2, 2, 3, 1))
sketch2.addConstraint(Sketcher.Constraint("Tangent", 3, 2, 4, 2))
sketch2.addConstraint(Sketcher.Constraint("Coincident", 4, 1, 5, 1))
sketch2.addConstraint(Sketcher.Constraint("Coincident", 5, 2, 6, 2))
sketch2.addConstraint(Sketcher.Constraint("Tangent", 6, 1, 7, 1))
sketch2.addConstraint(Sketcher.Constraint("Coincident", 7, 2, 8, 1))
sketch2.addConstraint(Sketcher.Constraint("Coincident", 8, 2, 9, 1))
sketch2.addConstraint(Sketcher.Constraint("Tangent", 9, 2, 10, 2))
sketch2.addConstraint(Sketcher.Constraint("Coincident", 10, 1, 11, 1))
sketch2.addConstraint(Sketcher.Constraint("Coincident", 11, 2, 0, 2))
sketch2.addConstraint(Sketcher.Constraint("Horizontal", 1))
sketch2.addConstraint(Sketcher.Constraint("Vertical", 2))
sketch2.addConstraint(Sketcher.Constraint("Horizontal", 3))
sketch2.addConstraint(Sketcher.Constraint("Vertical", 5))
sketch2.addConstraint(Sketcher.Constraint("Horizontal", 7))
sketch2.addConstraint(Sketcher.Constraint("Vertical", 8))
sketch2.addConstraint(Sketcher.Constraint("Horizontal", 9))
sketch2.addConstraint(Sketcher.Constraint("Vertical", 11))
sketch2.addConstraint(Sketcher.Constraint("Equal", 0, 4))
sketch2.addConstraint(Sketcher.Constraint("Equal", 4, 6))
sketch2.addConstraint(Sketcher.Constraint("Equal", 6, 10))
sketch2.addConstraint(Sketcher.Constraint("PointOnObject", 0, 1, -1))
sketch2.addConstraint(Sketcher.Constraint("Vertical", 0, 3, 4, 3))
sketch2.addConstraint(Sketcher.Constraint("Vertical", 4, 3, 6, 3))
sketch2.addConstraint(Sketcher.Constraint("Vertical", 6, 3, 10, 3))
sketch2.addConstraint(Sketcher.Constraint("Vertical", 5, 2, 10, 1))
sketch2.addConstraint(Sketcher.Constraint("Equal", 5, 11))
sketch2.addConstraint(Sketcher.Constraint("DistanceX", 1, 1, 1, 2, 10.0))
sketch2.addConstraint(Sketcher.Constraint("DistanceY", 2, 1, 2, 2, 21.0))
sketch2.addConstraint(Sketcher.Constraint("DistanceY", 8, 2, 8, 1, 7.0))
sketch2.addConstraint(Sketcher.Constraint("DistanceY", 5, 2, 5, 1, 4.4))
sketch2.addConstraint(Sketcher.Constraint("DistanceX", -1, 1, 7, 2, 10.0))
sketch2.addConstraint(Sketcher.Constraint("DistanceX", -1, 1, 4, 1, 18.5))
sketch2.addConstraint(Sketcher.Constraint("Radius", 0, 12.999985))
groove = body.newObject("PartDesign::Groove", "Groove")
groove.Profile = sketch2
groove.ReferenceAxis = (sketch2, ["V_Axis"])
groove.Angle = 360

sketch3 = body.newObject("Sketcher::SketchObject", "Sketch002")
sketch3.AttachmentSupport = (doc.getObject("XY_Plane"), [""])
sketch3.MapMode = "FlatFace"
sketch3.addGeometry(Part.Circle(V(0, 0, 0), V(0, 0, 1), 10), False)
sketch3.addConstraint(Sketcher.Constraint("Coincident", 0, 3, -1, 1))
sketch3.addConstraint(Sketcher.Constraint("Diameter", 0, 20.0))
pad2 = body.newObject("PartDesign::Pad", "Pad001")
pad2.Profile = sketch3
pad2.Length = 32

sketch4 = body.newObject("Sketcher::SketchObject", "Sketch003")
sketch4.AttachmentSupport = (doc.getObject("XY_Plane"), [""])
sketch4.MapMode = "FlatFace"
sketch4.addGeometry(Part.Circle(V(0, 0, 0), V(0, 0, 1), 5), False)
sketch4.addConstraint(Sketcher.Constraint("Coincident", 0, 3, -1, 1))
sketch4.addConstraint(Sketcher.Constraint("Diameter", 0, 10.0))
pocket1 = body.newObject("PartDesign::Pocket", "Pocket")
pocket1.Profile = sketch4
pocket1.Type = "ThroughAll"
pocket1.Midplane = True

doc.recompute()
